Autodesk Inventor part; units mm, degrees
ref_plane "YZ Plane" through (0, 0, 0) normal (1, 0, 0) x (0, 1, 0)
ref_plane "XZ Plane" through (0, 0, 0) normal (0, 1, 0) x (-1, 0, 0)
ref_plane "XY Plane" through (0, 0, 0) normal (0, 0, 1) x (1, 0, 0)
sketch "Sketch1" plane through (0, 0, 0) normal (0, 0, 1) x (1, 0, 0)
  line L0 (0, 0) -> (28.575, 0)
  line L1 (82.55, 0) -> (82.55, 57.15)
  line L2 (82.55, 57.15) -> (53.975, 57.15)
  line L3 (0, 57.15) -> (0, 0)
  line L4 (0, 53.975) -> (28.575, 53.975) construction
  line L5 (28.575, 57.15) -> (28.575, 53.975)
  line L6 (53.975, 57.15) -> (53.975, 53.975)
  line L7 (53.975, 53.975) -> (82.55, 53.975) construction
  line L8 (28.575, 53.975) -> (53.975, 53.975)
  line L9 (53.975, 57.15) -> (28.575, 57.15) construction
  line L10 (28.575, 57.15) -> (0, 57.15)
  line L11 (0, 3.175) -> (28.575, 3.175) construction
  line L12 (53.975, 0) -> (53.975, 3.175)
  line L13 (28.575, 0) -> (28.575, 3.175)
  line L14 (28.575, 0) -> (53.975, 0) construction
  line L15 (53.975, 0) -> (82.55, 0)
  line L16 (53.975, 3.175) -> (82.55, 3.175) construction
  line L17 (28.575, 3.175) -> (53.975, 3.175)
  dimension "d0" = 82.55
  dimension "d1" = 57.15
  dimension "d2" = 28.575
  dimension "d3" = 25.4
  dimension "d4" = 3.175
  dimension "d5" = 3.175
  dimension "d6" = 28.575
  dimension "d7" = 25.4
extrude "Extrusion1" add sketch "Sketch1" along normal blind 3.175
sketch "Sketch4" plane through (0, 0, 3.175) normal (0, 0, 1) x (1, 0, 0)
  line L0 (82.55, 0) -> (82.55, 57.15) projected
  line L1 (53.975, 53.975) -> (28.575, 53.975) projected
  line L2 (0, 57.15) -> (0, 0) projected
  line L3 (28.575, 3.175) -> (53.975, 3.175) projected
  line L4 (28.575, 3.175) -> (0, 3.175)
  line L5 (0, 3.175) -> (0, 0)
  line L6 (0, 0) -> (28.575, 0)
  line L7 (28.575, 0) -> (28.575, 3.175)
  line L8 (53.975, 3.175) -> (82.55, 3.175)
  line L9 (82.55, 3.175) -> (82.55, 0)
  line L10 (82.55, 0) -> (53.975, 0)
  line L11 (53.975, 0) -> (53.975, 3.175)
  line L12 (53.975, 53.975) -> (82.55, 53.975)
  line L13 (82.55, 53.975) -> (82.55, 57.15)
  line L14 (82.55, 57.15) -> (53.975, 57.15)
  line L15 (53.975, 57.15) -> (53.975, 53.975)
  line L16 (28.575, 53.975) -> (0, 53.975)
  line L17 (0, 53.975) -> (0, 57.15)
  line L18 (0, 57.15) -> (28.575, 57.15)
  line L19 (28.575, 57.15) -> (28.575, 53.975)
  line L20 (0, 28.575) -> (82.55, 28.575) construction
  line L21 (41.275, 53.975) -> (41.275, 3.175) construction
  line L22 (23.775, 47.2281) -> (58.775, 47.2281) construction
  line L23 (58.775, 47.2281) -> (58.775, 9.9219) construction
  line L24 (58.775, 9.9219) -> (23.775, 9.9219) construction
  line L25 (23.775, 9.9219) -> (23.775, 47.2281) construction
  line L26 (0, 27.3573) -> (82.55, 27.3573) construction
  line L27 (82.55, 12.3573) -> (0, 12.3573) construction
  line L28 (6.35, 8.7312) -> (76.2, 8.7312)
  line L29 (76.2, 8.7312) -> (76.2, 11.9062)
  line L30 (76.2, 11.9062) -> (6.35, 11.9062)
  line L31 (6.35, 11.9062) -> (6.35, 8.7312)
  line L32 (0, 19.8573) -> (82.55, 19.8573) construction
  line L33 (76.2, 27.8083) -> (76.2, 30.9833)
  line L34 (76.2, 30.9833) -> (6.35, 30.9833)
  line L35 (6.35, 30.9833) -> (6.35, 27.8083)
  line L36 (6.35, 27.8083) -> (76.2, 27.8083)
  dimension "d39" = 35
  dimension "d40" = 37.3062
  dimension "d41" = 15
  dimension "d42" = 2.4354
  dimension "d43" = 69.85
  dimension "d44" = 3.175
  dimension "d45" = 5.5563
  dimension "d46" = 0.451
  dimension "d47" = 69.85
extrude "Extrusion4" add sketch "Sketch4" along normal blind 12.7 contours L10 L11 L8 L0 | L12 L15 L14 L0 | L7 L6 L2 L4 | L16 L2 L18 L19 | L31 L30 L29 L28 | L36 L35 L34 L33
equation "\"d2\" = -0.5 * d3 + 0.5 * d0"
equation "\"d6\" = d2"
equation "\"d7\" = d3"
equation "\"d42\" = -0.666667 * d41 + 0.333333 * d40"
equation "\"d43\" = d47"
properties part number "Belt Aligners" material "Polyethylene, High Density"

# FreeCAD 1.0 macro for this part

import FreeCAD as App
import Part
import Sketcher

V = App.Vector
Q = App.Units.Quantity


def add_polygon(sketch, points):
    """Adds a closed chain of lines whose ends are joined by coincident constraints."""
    first, n = sketch.GeometryCount, len(points)
    for a, b in zip(points, points[1:] + points[:1]):
        sketch.addGeometry(Part.LineSegment(App.Vector(*a, 0), App.Vector(*b, 0)), False)
    for i in range(n):
        sketch.addConstraint(Sketcher.Constraint("Coincident", first + i, 2, first + (i + 1) % n, 1))

doc = App.newDocument("Part")
body = doc.addObject("PartDesign::Body", "Body")

# Sketch on XY plane
sketch1 = doc.addObject("Sketcher::SketchObject", "Sketch")
body.addObject(sketch1)
sketch1.AttachmentSupport = (doc.XY_Plane, [""])
sketch1.MapMode = "FlatFace"
add_polygon(sketch1, [(0, 57.1), (0, 0), (28.6, 0), (28.6, 3.2), (54, 3.2), (54, 0), (82.5, 0), (82.5, 57.1), (54, 57.1), (54, 54), (28.6, 54), (28.6, 57.1)])  # lines 0-11
sketch1.addConstraint([
    Sketcher.Constraint("Vertical", 0),
    Sketcher.Constraint("Horizontal", 1),
    Sketcher.Constraint("Vertical", 2),
    Sketcher.Constraint("Horizontal", 3),
    Sketcher.Constraint("Vertical", 4),
    Sketcher.Constraint("Horizontal", 5),
    Sketcher.Constraint("Vertical", 6),
    Sketcher.Constraint("Horizontal", 7),
    Sketcher.Constraint("Vertical", 8),
    Sketcher.Constraint("Horizontal", 9),
    Sketcher.Constraint("Vertical", 10),
    Sketcher.Constraint("Horizontal", 11),
    Sketcher.Constraint("Coincident", 0, 2, -1, 1),
    Sketcher.Constraint("PointOnObject", 4, 2, -1),
    Sketcher.Constraint("Horizontal", 7, 2, 10, 2),
    Sketcher.Constraint("Vertical", 4, 2, 7, 2),
    Sketcher.Constraint("Vertical", 2, 2, 9, 2),
    Sketcher.Constraint("Equal", 1, 5),
    Sketcher.Constraint("Equal", 4, 8),
    Sketcher.Constraint("DistanceX", 3, 1, 3, 2, Q("1 in")),
    Sketcher.Constraint("DistanceY", 0, 2, 0, 1, Q("2.25 in")),
    Sketcher.Constraint("DistanceX", 1, 1, 1, 2, Q("1.125 in")),
    Sketcher.Constraint("DistanceY", 2, 1, 2, 2, Q("0.125 in")),
])
pad1 = doc.addObject("PartDesign::Pad", "Pad")
body.addObject(pad1)
pad1.Profile = sketch1
pad1.Length = Q("0.125 in")

# Sketch on XY plane
sketch2 = doc.addObject("Sketcher::SketchObject", "Sketch001")
body.addObject(sketch2)
sketch2.AttachmentSupport = (doc.XY_Plane, [""])
sketch2.MapMode = "FlatFace"
sketch2.AttachmentOffset = App.Placement(V(0, 0, 0.125 * 25.4), App.Rotation())
add_polygon(sketch2, [(54, 0), (82.5, 0), (82.5, 3.2), (54, 3.2)])  # lines 0-3
add_polygon(sketch2, [(54, 54), (82.5, 54), (82.5, 57.1), (54, 57.1)])  # lines 4-7
add_polygon(sketch2, [(28.6, 0), (28.6, 3.2), (0, 3.2), (0, 0)])  # lines 8-11
add_polygon(sketch2, [(0, 54), (28.6, 54), (28.6, 57.1), (0, 57.1)])  # lines 12-15
add_polygon(sketch2, [(6.3, 11.9), (6.3, 8.7), (76.2, 8.7), (76.2, 11.9)])  # lines 16-19
add_polygon(sketch2, [(6.3, 27.8), (76.2, 27.8), (76.2, 31), (6.3, 31)])  # lines 20-23
sketch2.addConstraint([
    Sketcher.Constraint("Horizontal", 0),
    Sketcher.Constraint("Vertical", 1),
    Sketcher.Constraint("Horizontal", 2),
    Sketcher.Constraint("Vertical", 3),
    Sketcher.Constraint("Horizontal", 4),
    Sketcher.Constraint("Vertical", 5),
    Sketcher.Constraint("Horizontal", 6),
    Sketcher.Constraint("Vertical", 7),
    Sketcher.Constraint("Vertical", 8),
    Sketcher.Constraint("Horizontal", 9),
    Sketcher.Constraint("Vertical", 10),
    Sketcher.Constraint("Horizontal", 11),
    Sketcher.Constraint("Horizontal", 12),
    Sketcher.Constraint("Vertical", 13),
    Sketcher.Constraint("Horizontal", 14),
    Sketcher.Constraint("Vertical", 15),
    Sketcher.Constraint("Vertical", 16),
    Sketcher.Constraint("Horizontal", 17),
    Sketcher.Constraint("Vertical", 18),
    Sketcher.Constraint("Horizontal", 19),
    Sketcher.Constraint("Horizontal", 20),
    Sketcher.Constraint("Vertical", 21),
    Sketcher.Constraint("Horizontal", 22),
    Sketcher.Constraint("Vertical", 23),
    Sketcher.Constraint("Coincident", 10, 2, -1, 1),
    Sketcher.Constraint("PointOnObject", 0, 2, -1),
    Sketcher.Constraint("PointOnObject", 14, 2, -2),
    Sketcher.Constraint("Horizontal", 2, 2, 8, 2),
    Sketcher.Constraint("Horizontal", 7, 2, 12, 2),
    Sketcher.Constraint("Horizontal", 6, 2, 13, 2),
    Sketcher.Constraint("Vertical", 1, 2, 4, 2),
    Sketcher.Constraint("Vertical", 3, 2, 6, 2),
    Sketcher.Constraint("Vertical", 11, 2, 12, 2),
    Sketcher.Constraint("Vertical", 18, 2, 20, 2),
    Sketcher.Constraint("Vertical", 19, 2, 22, 2),
    Sketcher.Constraint("Equal", 6, 9),
    Sketcher.Constraint("Equal", 3, 5),
    Sketcher.Constraint("Equal", 15, 16),
    Sketcher.Constraint("Equal", 18, 21),
    Sketcher.Constraint("DistanceX", 17, 1, 17, 2, Q("2.75 in")),
    Sketcher.Constraint("DistanceY", 1, 1, 1, 2, Q("0.125 in")),
    Sketcher.Constraint("DistanceX", -1, 1, 17, 2, Q("3 in")),
    Sketcher.Constraint("DistanceY", 1, 2, 4, 2, Q("2 in")),
    Sketcher.Constraint("DistanceX", 8, 2, 2, 2, Q("1 in")),
    Sketcher.Constraint("DistanceY", 9, 2, 16, 2, Q("0.218748 in")),
    Sketcher.Constraint("DistanceX", 0, 1, 0, 2, Q("1.125 in")),
    Sketcher.Constraint("DistanceY", -1, 1, 20, 2, Q("27.8083 mm")),
])
pad2 = doc.addObject("PartDesign::Pad", "Pad001")
body.addObject(pad2)
pad2.Profile = sketch2
pad2.Length = Q("0.5 in")

doc.recompute()
